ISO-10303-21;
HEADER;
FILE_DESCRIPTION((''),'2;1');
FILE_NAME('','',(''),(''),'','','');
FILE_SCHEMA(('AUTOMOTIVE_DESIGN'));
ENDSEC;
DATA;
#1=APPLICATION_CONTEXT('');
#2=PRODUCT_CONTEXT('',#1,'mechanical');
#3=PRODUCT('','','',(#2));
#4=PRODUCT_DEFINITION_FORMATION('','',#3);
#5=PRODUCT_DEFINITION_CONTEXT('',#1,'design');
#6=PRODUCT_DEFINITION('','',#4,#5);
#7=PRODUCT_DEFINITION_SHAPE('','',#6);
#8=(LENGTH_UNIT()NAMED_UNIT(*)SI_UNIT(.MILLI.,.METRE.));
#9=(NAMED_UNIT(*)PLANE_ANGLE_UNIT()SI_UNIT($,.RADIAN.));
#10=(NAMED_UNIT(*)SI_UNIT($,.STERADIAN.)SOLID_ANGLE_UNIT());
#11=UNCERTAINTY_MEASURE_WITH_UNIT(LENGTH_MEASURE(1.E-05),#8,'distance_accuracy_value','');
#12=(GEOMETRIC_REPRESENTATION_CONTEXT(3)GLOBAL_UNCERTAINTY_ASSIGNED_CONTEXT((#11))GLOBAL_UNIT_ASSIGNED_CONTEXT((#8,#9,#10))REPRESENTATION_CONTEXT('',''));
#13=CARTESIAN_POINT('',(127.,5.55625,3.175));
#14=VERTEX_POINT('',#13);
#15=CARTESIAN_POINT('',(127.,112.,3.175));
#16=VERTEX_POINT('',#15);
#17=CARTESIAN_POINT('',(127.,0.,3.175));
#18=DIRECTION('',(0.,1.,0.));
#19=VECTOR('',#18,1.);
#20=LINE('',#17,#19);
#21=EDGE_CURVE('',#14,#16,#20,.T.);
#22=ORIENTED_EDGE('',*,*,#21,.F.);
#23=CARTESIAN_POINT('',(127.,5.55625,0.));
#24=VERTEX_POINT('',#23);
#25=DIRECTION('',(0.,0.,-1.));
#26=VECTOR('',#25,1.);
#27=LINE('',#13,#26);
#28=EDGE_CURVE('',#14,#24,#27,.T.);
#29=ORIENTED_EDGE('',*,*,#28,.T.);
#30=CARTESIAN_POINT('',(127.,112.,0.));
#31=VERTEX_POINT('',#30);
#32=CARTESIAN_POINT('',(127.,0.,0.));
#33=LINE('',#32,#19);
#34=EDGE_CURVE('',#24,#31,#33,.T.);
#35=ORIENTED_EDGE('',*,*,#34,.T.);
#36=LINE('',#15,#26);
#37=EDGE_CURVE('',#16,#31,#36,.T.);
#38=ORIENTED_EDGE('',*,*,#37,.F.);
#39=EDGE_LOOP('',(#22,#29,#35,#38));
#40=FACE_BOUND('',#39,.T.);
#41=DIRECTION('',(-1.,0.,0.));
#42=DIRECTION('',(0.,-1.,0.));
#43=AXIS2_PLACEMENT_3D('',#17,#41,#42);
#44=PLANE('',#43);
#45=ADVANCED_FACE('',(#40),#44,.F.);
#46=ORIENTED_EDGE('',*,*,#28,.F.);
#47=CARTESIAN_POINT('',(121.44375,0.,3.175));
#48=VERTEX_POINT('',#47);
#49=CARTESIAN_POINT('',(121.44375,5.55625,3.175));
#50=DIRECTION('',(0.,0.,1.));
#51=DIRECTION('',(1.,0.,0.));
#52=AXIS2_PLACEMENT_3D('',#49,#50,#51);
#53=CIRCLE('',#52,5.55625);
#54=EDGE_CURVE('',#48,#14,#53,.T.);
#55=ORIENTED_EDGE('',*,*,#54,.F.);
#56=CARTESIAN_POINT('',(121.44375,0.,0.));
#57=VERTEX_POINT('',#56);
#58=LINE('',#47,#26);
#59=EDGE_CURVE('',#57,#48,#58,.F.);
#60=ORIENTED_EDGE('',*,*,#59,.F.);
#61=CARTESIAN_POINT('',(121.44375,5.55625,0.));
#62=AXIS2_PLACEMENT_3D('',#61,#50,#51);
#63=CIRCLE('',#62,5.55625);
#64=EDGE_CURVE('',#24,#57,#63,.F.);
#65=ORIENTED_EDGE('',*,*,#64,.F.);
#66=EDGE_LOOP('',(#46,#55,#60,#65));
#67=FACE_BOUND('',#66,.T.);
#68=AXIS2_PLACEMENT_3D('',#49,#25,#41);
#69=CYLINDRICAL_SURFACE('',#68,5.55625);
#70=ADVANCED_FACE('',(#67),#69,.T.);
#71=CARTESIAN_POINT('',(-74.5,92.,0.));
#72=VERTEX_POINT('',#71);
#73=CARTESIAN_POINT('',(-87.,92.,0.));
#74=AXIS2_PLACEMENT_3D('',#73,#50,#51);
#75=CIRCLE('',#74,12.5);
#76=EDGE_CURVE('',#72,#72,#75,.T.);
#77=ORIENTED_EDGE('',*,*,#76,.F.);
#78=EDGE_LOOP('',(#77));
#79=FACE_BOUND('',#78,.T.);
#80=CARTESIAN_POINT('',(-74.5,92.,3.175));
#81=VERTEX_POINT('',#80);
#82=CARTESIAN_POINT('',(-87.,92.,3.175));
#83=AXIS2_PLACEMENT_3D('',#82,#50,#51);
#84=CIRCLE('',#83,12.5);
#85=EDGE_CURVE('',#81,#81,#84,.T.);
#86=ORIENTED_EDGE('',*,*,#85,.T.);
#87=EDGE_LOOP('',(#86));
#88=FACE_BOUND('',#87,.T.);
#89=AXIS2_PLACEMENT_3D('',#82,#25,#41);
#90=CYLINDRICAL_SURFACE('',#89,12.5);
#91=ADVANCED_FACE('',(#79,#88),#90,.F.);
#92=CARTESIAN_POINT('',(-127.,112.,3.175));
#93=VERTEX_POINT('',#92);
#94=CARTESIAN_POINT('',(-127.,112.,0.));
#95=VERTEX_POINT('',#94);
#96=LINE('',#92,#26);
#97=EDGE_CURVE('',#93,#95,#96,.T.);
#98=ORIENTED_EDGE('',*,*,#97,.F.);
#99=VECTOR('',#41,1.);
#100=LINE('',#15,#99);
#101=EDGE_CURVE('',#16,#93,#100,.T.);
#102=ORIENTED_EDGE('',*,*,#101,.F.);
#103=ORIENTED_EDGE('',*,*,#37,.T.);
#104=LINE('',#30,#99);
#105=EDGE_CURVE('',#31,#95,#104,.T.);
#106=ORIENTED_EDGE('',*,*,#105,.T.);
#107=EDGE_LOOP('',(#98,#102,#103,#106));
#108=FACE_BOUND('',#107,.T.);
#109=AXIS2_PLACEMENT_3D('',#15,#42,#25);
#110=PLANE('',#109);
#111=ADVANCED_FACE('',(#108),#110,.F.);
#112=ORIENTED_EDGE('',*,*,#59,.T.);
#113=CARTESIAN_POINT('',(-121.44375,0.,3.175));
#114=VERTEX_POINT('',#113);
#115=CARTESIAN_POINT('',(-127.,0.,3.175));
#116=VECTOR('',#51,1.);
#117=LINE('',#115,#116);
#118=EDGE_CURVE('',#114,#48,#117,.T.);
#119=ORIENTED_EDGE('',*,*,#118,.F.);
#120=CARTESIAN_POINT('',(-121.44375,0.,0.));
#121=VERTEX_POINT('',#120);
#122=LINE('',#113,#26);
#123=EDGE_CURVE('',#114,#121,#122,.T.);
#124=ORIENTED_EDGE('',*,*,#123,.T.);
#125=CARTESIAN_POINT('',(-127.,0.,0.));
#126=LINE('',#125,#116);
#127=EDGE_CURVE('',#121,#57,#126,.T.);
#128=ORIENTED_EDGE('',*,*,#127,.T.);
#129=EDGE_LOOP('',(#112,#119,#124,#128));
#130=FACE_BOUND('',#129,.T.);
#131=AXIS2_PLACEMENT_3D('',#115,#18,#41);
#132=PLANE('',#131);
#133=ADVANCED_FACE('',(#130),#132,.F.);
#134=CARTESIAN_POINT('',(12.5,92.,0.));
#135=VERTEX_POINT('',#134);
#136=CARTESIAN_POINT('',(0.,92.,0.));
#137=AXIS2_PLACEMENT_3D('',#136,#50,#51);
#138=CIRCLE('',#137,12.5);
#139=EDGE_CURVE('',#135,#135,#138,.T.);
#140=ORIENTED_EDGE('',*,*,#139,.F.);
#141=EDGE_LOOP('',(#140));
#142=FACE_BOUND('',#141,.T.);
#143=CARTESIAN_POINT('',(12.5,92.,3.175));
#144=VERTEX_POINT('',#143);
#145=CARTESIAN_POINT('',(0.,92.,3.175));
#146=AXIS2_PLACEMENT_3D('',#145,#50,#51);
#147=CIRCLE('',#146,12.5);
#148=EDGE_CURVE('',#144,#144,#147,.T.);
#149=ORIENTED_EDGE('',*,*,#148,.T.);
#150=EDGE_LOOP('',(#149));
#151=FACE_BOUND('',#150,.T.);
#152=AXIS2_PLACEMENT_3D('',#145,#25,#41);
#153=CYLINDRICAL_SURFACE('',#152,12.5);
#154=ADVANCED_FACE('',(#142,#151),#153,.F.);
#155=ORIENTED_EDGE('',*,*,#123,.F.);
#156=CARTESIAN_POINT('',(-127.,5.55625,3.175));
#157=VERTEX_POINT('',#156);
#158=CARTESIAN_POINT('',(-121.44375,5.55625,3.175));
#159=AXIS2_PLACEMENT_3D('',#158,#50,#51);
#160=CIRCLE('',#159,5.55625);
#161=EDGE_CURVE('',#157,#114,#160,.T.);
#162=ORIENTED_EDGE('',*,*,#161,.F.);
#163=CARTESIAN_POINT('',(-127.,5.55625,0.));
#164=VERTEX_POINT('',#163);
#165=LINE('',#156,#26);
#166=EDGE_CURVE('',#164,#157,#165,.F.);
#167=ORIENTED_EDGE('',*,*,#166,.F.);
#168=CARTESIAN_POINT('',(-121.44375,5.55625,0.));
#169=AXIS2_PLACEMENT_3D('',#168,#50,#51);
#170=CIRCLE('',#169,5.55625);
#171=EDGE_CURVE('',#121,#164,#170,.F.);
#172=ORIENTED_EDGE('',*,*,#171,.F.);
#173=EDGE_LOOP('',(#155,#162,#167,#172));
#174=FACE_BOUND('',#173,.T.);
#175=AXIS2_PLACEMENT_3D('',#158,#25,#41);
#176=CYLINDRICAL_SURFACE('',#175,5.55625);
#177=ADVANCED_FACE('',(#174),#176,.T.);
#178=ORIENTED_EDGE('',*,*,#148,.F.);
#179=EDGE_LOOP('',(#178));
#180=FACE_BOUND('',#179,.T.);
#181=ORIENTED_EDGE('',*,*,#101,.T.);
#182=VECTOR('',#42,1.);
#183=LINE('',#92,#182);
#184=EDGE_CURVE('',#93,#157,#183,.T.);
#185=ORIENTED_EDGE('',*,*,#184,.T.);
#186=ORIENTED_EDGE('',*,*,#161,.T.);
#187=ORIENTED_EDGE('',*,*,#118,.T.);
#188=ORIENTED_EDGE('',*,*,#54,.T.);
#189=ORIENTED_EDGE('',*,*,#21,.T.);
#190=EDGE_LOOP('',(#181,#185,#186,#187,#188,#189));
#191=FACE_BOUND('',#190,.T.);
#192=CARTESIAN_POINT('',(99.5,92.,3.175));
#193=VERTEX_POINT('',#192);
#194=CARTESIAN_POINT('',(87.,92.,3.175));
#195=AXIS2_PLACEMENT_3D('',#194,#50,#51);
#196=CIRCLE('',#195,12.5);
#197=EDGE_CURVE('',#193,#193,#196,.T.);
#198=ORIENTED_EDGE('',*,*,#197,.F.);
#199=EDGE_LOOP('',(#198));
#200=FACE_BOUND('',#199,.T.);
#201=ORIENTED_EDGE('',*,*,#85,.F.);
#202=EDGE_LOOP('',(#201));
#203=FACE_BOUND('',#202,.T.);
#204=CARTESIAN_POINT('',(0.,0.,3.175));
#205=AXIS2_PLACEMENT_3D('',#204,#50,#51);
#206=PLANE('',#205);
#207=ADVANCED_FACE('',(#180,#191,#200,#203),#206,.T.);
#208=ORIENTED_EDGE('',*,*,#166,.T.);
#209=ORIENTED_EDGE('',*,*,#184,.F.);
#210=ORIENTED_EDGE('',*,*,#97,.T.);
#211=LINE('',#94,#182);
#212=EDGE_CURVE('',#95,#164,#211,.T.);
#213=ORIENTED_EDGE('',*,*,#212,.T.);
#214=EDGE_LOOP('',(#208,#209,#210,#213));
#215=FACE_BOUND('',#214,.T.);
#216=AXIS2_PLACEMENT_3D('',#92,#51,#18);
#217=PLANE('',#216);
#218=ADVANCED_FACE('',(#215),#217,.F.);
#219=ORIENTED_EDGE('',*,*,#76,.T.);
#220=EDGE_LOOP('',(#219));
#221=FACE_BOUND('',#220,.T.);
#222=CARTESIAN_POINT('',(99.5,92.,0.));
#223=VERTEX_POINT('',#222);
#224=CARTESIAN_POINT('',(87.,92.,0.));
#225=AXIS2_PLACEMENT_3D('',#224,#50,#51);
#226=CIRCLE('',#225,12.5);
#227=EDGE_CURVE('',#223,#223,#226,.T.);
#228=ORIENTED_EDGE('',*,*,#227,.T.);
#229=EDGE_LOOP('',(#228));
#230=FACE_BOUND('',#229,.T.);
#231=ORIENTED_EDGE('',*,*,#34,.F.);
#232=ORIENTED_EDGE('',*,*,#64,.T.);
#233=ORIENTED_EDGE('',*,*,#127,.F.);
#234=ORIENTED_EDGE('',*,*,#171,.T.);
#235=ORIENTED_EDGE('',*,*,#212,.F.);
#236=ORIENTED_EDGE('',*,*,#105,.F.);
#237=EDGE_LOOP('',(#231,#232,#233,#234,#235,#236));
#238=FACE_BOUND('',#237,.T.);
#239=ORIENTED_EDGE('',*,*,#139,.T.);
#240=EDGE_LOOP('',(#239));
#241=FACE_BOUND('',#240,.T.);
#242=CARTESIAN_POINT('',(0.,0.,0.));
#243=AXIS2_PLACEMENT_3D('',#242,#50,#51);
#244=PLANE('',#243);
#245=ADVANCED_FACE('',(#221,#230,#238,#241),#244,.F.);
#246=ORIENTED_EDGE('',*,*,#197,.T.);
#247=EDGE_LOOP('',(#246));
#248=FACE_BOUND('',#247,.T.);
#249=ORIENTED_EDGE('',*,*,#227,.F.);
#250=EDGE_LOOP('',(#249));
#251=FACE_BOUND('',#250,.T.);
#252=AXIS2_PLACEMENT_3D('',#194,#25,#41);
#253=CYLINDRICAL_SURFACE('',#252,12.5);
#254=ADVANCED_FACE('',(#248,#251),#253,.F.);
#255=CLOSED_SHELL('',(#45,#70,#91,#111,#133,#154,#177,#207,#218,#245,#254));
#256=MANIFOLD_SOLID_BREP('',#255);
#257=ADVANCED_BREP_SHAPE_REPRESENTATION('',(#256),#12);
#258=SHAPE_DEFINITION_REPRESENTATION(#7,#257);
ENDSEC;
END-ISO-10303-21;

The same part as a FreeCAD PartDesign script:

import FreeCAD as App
import Part
import Sketcher

V = App.Vector
Q = App.Units.Quantity


def edges_at(feature, points):
    """Names of the edges that pass closest to the given points."""
    edges = feature.Shape.Edges
    near = lambda p: min(range(len(edges)), key=lambda i: edges[i].distToShape(Part.Vertex(*p))[0])
    return sorted({f"Edge{near(p) + 1}" for p in points})

doc = App.newDocument("Part")
body = doc.addObject("PartDesign::Body", "Body")

sketch1 = body.newObject("Sketcher::SketchObject", "Sketch")
sketch1.AttachmentSupport = (doc.getObject("XY_Plane"), [""])
sketch1.MapMode = "FlatFace"
sketch1.addGeometry([
    Part.LineSegment(V(-127, 112, 0), V(-127, 0, 0)),
    Part.LineSegment(V(-127, 0, 0), V(127, 0, 0)),
    Part.LineSegment(V(127, 0, 0), V(127, 112, 0)),
    Part.LineSegment(V(127, 112, 0), V(-127, 112, 0)),
    Part.Circle(V(-87, 92, 0), V(0, 0, 1), 12.5),
    Part.Circle(V(0, 92, 0), V(0, 0, 1), 12.5),
    Part.Circle(V(87, 92, 0), V(0, 0, 1), 12.5),
], False)
sketch1.addConstraint([
    Sketcher.Constraint("Coincident", 0, 2, 1, 1),
    Sketcher.Constraint("Coincident", 1, 2, 2, 1),
    Sketcher.Constraint("Coincident", 2, 2, 3, 1),
    Sketcher.Constraint("Coincident", 3, 2, 0, 1),
    Sketcher.Constraint("Vertical", 0),
    Sketcher.Constraint("Horizontal", 1),
    Sketcher.Constraint("Vertical", 2),
    Sketcher.Constraint("Horizontal", 3),
    Sketcher.Constraint("Equal", 4, 5),
    Sketcher.Constraint("Equal", 5, 6),
    Sketcher.Constraint("Symmetric", 0, 2, 1, 2, -1, 1),
    Sketcher.Constraint("Symmetric", 4, 3, 6, 3, -2),
    Sketcher.Constraint("PointOnObject", 5, 3, -2),
    Sketcher.Constraint("Horizontal", 4, 3, 5, 3),
    Sketcher.Constraint("DistanceX", 1, 1, 1, 2, Q("10 in")),
    Sketcher.Constraint("Diameter", 4, 25.0),
    Sketcher.Constraint("DistanceY", 0, 2, 0, 1, 112.0),
    Sketcher.Constraint("DistanceX", 4, 3, -1, 1, 87.0),
    Sketcher.Constraint("DistanceY", -1, 1, 4, 3, 92.0),
])
pad1 = body.newObject("PartDesign::Pad", "Pad")
pad1.Profile = sketch1
pad1.Length = Q("0.125 in")
doc.recompute()

fillet = body.newObject("PartDesign::Fillet", "Fillet")
fillet.Base = (pad1, edges_at(pad1, [(127, 0, 1.587), (-127, 0, 1.587)]))
fillet.Radius = Q("0.21875 in")

doc.recompute()
